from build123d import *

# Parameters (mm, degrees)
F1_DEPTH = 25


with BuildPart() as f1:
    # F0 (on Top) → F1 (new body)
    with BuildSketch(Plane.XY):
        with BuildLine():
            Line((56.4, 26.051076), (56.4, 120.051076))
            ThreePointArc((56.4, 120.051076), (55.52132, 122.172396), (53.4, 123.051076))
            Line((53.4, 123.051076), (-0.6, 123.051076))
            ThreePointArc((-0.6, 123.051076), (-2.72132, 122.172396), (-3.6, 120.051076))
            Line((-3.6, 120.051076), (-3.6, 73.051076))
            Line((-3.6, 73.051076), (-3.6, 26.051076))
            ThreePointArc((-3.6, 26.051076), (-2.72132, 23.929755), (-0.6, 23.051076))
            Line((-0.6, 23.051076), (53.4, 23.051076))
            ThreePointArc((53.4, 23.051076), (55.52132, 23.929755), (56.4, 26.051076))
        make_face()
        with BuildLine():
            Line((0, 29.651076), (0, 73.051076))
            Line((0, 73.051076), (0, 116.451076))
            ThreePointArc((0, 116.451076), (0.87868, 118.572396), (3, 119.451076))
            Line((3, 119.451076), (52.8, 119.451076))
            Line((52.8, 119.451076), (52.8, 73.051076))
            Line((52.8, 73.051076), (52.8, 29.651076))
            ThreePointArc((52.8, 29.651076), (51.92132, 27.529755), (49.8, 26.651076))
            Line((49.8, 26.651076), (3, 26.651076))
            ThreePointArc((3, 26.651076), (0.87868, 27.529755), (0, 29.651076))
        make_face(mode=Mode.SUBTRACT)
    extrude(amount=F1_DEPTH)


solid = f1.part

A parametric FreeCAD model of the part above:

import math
import FreeCAD as App
import Part
import Sketcher

doc = App.newDocument("Part")
body = doc.addObject("PartDesign::Body", "Body")

sketch1 = body.newObject("Sketcher::SketchObject", "Sketch")
sketch1.AttachmentSupport = (doc.getObject("XY_Plane"), [""])
sketch1.MapMode = "FlatFace"
sketch1.addGeometry([
    Part.LineSegment(App.Vector(56.4, 26.1, 0), App.Vector(56.4, 120.1, 0)),
    Part.ArcOfCircle(Part.Circle(App.Vector(53.4, 120.1, 0), App.Vector(0, 0, 1), 3), math.radians(0), math.radians(90)),
    Part.LineSegment(App.Vector(53.4, 123.1, 0), App.Vector(-0.6, 123.1, 0)),
    Part.ArcOfCircle(Part.Circle(App.Vector(-0.6, 120.1, 0), App.Vector(0, 0, 1), 3), math.radians(90), math.radians(180)),
    Part.LineSegment(App.Vector(-3.6, 120.1, 0), App.Vector(-3.6, 26.1, 0)),
    Part.ArcOfCircle(Part.Circle(App.Vector(-0.6, 26.1, 0), App.Vector(0, 0, 1), 3), math.radians(180), math.radians(270)),
    Part.LineSegment(App.Vector(-0.6, 23.1, 0), App.Vector(53.4, 23.1, 0)),
    Part.ArcOfCircle(Part.Circle(App.Vector(53.4, 26.1, 0), App.Vector(0, 0, 1), 3), math.radians(-90), math.radians(0)),
    Part.ArcOfCircle(Part.Circle(App.Vector(3, 29.7, 0), App.Vector(0, 0, 1), 3), math.radians(180), math.radians(270)),
    Part.LineSegment(App.Vector(0, 29.7, 0), App.Vector(0, 116.5, 0)),
    Part.ArcOfCircle(Part.Circle(App.Vector(3, 116.5, 0), App.Vector(0, 0, 1), 3), math.radians(90), math.radians(180)),
    Part.LineSegment(App.Vector(3, 119.5, 0), App.Vector(52.8, 119.5, 0)),
    Part.LineSegment(App.Vector(52.8, 119.5, 0), App.Vector(52.8, 29.7, 0)),
    Part.ArcOfCircle(Part.Circle(App.Vector(49.8, 29.7, 0), App.Vector(0, 0, 1), 3), math.radians(-90), math.radians(0)),
    Part.LineSegment(App.Vector(49.8, 26.7, 0), App.Vector(3, 26.7, 0)),
], False)
sketch1.addConstraint([
    Sketcher.Constraint("Tangent", 0, 2, 1, 1),
    Sketcher.Constraint("Tangent", 1, 2, 2, 1),
    Sketcher.Constraint("Tangent", 2, 2, 3, 1),
    Sketcher.Constraint("Tangent", 3, 2, 4, 1),
    Sketcher.Constraint("Tangent", 4, 2, 5, 1),
    Sketcher.Constraint("Tangent", 5, 2, 6, 1),
    Sketcher.Constraint("Tangent", 6, 2, 7, 1),
    Sketcher.Constraint("Tangent", 7, 2, 0, 1),
    Sketcher.Constraint("Tangent", 8, 1, 9, 1),
    Sketcher.Constraint("Tangent", 9, 2, 10, 2),
    Sketcher.Constraint("Tangent", 10, 1, 11, 1),
    Sketcher.Constraint("Coincident", 11, 2, 12, 1),
    Sketcher.Constraint("Tangent", 12, 2, 13, 2),
    Sketcher.Constraint("Tangent", 13, 1, 14, 1),
    Sketcher.Constraint("Tangent", 14, 2, 8, 2),
    Sketcher.Constraint("Vertical", 0),
    Sketcher.Constraint("Horizontal", 2),
    Sketcher.Constraint("Vertical", 4),
    Sketcher.Constraint("Horizontal", 6),
    Sketcher.Constraint("Vertical", 9),
    Sketcher.Constraint("Horizontal", 11),
    Sketcher.Constraint("Vertical", 12),
    Sketcher.Constraint("Horizontal", 14),
    Sketcher.Constraint("Equal", 1, 3),
    Sketcher.Constraint("Equal", 3, 5),
    Sketcher.Constraint("Equal", 5, 7),
    Sketcher.Constraint("Equal", 7, 8),
    Sketcher.Constraint("Equal", 8, 10),
    Sketcher.Constraint("Equal", 10, 13),
    Sketcher.Constraint("PointOnObject", 8, 1, -2),
    Sketcher.Constraint("Radius", 1, 3.000001),
    Sketcher.Constraint("DistanceX", 2, 2, 2, 1, 54.0),
    Sketcher.Constraint("DistanceY", 0, 1, 0, 2, 94.0),
    Sketcher.Constraint("DistanceX", 11, 1, 11, 2, 49.8),
    Sketcher.Constraint("DistanceY", 9, 1, 9, 2, 86.8),
    Sketcher.Constraint("DistanceX", -1, 1, 1, 3, 53.399999),
    Sketcher.Constraint("DistanceY", 5, 3, 8, 3, 3.6),
    Sketcher.Constraint("DistanceY", -1, 1, 1, 3, 120.051075),
])
pad1 = body.newObject("PartDesign::Pad", "Pad")
pad1.Profile = sketch1
pad1.Length = 25

doc.recompute()
